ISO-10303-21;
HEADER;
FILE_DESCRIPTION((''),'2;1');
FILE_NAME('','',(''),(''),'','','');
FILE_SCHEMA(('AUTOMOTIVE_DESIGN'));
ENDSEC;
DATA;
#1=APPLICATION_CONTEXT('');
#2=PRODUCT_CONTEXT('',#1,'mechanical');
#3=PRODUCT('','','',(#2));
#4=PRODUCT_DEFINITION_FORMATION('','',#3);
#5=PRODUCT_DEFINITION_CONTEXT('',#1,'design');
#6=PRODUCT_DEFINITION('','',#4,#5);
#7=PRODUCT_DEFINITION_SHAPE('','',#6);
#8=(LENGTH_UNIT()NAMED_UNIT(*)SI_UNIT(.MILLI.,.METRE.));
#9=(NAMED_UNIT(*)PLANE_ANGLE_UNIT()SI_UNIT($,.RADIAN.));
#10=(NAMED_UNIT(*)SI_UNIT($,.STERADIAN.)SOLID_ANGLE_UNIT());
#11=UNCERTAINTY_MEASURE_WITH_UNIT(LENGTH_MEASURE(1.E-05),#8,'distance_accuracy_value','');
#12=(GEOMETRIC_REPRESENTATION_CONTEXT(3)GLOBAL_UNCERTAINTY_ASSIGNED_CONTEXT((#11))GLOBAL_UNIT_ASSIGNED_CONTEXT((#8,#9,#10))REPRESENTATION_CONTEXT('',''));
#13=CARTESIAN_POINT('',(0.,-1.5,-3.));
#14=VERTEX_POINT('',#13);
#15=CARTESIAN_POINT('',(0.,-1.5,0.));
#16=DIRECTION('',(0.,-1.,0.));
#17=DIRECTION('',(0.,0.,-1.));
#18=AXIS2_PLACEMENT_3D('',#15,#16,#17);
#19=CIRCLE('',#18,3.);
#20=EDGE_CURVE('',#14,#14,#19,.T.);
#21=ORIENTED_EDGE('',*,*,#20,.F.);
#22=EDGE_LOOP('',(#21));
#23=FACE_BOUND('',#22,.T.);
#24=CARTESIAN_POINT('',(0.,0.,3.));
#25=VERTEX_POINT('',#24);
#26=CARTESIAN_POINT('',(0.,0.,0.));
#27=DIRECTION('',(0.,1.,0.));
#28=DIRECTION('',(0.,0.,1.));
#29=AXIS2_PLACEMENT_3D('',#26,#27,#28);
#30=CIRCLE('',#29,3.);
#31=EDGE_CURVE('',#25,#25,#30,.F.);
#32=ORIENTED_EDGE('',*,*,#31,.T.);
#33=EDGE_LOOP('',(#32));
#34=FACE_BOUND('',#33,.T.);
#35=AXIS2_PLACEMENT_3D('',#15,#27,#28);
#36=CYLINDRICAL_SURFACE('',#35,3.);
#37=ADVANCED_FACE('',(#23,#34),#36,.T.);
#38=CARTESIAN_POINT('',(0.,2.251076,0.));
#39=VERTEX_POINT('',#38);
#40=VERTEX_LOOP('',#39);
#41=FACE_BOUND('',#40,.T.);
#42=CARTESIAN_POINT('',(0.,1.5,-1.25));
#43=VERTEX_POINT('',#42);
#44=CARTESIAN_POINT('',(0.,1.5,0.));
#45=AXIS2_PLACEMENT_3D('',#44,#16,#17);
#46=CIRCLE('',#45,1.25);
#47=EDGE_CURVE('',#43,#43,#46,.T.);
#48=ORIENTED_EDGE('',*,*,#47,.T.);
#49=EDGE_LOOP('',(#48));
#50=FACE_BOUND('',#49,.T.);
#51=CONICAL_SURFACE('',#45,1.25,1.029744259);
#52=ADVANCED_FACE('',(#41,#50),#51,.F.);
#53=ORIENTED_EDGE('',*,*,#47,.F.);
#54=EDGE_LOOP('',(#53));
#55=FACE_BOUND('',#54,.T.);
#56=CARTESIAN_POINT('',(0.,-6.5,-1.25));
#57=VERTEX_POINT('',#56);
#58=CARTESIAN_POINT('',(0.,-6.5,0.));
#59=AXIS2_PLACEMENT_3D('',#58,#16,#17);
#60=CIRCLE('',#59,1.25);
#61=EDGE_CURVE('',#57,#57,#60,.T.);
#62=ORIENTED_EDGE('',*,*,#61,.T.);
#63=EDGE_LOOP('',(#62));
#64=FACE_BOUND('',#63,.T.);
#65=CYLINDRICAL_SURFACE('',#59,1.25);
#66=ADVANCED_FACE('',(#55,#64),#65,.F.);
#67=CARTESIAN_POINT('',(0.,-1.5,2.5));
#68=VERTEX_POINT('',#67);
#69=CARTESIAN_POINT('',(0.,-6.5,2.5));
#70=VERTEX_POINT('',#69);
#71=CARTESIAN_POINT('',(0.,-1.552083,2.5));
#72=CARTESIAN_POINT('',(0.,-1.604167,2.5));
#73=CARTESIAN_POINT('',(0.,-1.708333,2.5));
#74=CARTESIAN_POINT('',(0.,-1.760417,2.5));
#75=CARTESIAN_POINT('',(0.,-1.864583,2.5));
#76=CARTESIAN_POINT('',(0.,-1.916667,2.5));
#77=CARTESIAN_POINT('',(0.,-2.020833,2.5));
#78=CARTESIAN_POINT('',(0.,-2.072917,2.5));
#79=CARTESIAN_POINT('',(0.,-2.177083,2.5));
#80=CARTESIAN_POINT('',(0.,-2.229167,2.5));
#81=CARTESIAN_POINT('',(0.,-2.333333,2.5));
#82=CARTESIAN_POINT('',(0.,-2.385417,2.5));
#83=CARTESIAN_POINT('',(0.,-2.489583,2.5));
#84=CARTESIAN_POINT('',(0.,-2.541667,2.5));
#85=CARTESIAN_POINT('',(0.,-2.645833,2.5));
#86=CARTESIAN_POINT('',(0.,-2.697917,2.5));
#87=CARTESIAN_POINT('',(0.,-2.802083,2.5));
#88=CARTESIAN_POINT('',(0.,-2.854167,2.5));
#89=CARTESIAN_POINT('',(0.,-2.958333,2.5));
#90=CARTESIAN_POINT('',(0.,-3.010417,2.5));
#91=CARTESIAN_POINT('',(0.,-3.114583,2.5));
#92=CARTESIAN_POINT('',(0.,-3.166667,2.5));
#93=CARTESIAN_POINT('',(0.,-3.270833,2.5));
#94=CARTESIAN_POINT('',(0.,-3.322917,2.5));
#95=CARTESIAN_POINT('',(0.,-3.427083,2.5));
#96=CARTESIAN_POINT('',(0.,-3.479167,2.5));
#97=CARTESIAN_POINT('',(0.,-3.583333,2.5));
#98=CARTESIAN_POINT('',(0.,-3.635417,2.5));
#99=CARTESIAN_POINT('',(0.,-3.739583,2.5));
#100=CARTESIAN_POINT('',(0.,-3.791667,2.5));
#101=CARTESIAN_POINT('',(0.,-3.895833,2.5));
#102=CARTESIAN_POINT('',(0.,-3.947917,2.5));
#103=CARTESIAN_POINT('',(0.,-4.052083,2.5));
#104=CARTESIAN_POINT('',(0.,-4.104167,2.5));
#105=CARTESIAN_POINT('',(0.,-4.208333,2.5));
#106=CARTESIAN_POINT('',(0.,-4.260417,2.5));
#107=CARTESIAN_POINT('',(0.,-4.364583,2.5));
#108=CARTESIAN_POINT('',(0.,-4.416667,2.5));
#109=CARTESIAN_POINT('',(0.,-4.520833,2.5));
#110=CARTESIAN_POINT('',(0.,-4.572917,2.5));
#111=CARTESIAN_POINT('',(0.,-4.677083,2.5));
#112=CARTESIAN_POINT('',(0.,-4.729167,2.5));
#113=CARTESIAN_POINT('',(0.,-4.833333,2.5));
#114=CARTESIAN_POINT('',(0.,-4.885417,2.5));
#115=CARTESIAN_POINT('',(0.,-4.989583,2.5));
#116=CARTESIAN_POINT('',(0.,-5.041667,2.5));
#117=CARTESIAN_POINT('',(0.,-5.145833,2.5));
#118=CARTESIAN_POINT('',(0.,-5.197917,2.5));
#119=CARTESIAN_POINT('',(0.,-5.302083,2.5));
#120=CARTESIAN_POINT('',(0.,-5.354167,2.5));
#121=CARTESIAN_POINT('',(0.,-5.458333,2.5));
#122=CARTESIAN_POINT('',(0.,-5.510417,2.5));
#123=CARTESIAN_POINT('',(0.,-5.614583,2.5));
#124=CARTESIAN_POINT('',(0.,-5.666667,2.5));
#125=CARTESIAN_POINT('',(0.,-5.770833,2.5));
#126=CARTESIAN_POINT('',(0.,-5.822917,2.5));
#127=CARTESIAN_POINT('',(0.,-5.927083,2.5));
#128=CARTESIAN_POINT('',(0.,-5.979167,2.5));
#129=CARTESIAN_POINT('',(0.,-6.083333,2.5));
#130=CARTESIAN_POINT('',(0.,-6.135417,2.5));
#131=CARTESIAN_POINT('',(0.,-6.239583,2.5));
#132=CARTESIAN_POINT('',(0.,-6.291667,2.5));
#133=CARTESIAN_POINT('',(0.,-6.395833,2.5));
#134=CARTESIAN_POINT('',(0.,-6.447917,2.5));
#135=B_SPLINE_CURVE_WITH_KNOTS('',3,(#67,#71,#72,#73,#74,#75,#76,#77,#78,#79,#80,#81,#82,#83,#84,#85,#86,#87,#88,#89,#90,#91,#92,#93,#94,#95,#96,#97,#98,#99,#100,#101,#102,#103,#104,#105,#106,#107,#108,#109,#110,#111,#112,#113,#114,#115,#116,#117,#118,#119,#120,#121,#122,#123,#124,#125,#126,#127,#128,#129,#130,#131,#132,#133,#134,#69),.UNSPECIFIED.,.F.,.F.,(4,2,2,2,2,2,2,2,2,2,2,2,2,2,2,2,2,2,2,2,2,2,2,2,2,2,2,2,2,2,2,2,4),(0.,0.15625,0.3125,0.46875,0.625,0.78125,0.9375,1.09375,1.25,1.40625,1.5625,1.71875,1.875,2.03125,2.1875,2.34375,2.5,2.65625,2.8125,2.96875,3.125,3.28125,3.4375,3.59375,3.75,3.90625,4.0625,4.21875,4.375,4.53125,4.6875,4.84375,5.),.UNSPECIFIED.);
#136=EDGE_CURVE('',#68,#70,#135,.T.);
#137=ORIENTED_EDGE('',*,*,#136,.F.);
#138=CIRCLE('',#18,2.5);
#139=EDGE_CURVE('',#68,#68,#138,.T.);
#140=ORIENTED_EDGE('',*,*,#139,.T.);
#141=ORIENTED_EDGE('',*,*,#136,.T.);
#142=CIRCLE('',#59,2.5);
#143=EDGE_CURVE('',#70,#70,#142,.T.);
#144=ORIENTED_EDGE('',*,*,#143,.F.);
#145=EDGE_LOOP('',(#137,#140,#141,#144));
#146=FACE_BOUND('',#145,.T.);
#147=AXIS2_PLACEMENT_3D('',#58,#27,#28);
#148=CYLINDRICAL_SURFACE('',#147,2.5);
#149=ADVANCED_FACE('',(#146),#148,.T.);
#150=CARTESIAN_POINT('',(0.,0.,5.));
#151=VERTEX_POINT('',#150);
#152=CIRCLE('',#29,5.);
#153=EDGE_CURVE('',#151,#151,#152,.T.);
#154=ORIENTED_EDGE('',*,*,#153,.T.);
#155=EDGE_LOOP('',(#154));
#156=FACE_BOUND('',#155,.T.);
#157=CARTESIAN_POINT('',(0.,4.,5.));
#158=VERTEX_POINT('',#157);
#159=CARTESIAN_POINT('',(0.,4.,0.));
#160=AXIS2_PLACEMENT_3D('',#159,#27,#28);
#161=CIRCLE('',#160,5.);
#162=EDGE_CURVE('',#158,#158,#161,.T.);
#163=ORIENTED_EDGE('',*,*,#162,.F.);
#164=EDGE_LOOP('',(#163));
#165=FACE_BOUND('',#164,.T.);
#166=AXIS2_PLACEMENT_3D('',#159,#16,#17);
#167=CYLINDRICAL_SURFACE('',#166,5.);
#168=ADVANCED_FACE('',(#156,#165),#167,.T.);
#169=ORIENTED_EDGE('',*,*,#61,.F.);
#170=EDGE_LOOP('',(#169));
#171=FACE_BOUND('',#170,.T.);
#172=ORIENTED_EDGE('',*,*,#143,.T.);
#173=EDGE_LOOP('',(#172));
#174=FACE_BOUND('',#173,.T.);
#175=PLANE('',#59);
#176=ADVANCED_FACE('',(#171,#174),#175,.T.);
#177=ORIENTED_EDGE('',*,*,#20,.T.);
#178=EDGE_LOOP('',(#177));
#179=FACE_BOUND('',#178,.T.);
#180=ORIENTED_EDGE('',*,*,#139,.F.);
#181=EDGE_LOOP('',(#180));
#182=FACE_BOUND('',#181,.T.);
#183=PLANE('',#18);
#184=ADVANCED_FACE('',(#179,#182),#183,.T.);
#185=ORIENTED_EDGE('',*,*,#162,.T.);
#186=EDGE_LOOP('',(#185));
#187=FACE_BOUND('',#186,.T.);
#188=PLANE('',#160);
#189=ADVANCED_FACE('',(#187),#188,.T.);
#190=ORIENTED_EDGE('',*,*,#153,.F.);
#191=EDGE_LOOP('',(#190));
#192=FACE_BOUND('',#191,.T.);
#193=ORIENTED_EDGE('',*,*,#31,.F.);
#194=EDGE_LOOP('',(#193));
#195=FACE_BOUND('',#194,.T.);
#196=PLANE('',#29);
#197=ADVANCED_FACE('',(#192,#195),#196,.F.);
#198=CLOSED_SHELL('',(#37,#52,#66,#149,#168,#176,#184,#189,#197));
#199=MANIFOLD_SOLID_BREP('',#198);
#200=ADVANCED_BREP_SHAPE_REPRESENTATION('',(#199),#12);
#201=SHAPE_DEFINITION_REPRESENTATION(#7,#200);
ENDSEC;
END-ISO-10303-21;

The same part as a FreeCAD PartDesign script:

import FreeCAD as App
import Part
import Sketcher
from FreeCAD import Vector
Q = App.Units.Quantity


def add_polygon(sketch, points):
    """Adds a closed chain of lines whose ends are joined by coincident constraints."""
    first, n = sketch.GeometryCount, len(points)
    for a, b in zip(points, points[1:] + points[:1]):
        sketch.addGeometry(Part.LineSegment(App.Vector(*a, 0), App.Vector(*b, 0)), False)
    for i in range(n):
        sketch.addConstraint(Sketcher.Constraint("Coincident", first + i, 2, first + (i + 1) % n, 1))

doc = App.newDocument("Part")
body = doc.addObject("PartDesign::Body", "Body")

sketch1 = doc.addObject("Sketcher::SketchObject", "Sketch")
body.addObject(sketch1)
sketch1.AttachmentSupport = (doc.XZ_Plane, [""])
sketch1.MapMode = "FlatFace"
sketch1.addGeometry(Part.Circle(Vector(0, 0, 0), Vector(0, 0, 1), 5), False)
sketch1.addConstraint([
    Sketcher.Constraint("Coincident", 0, 3, -1, 1),
    Sketcher.Constraint("Diameter", 0, 10.0),
])
pad1 = doc.addObject("PartDesign::Pad", "Pad")
body.addObject(pad1)
pad1.Profile = sketch1
pad1.Length = 4
pad1.Reversed = True

sketch2 = doc.addObject("Sketcher::SketchObject", "Sketch001")
body.addObject(sketch2)
sketch2.AttachmentSupport = (doc.XZ_Plane, [""])
sketch2.MapMode = "FlatFace"
sketch2.addGeometry(Part.Circle(Vector(0, 0, 0), Vector(0, 0, 1), 2.5), False)
sketch2.addConstraint([
    Sketcher.Constraint("Coincident", 0, 3, -1, 1),
    Sketcher.Constraint("Diameter", 0, 5.0),
])
pad2 = doc.addObject("PartDesign::Pad", "Pad001")
body.addObject(pad2)
pad2.Profile = sketch2
pad2.Length = 6.5

sketch3 = doc.addObject("Sketcher::SketchObject", "Sketch002")
body.addObject(sketch3)
sketch3.AttachmentSupport = (doc.XZ_Plane, [""])
sketch3.MapMode = "FlatFace"
sketch3.addGeometry(Part.Circle(Vector(0, 0, 0), Vector(0, 0, 1), 3), False)
sketch3.addConstraint([
    Sketcher.Constraint("Coincident", 0, 3, -1, 1),
    Sketcher.Constraint("Diameter", 0, 6.0),
])
pad3 = doc.addObject("PartDesign::Pad", "Pad002")
body.addObject(pad3)
pad3.Profile = sketch3
pad3.Length = 1.5

sketch4 = doc.addObject("Sketcher::SketchObject", "Sketch003")
body.addObject(sketch4)
sketch4.AttachmentSupport = (doc.YZ_Plane, [""])
sketch4.MapMode = "FlatFace"
add_polygon(sketch4, [(2.251076, 0), (-6.5, 0), (-6.5, -1.25), (1.5, -1.25)])
sketch4.addConstraint([
    Sketcher.Constraint("Horizontal", 0),
    Sketcher.Constraint("Vertical", 1),
    Sketcher.Constraint("Horizontal", 2),
    Sketcher.Constraint("PointOnObject", 0, 2, -1),
    Sketcher.Constraint("DistanceX", 2, 1, 2, 2, 8.0),
    Sketcher.Constraint("Angle", 3, Q("59 deg")),
    Sketcher.Constraint("DistanceY", 1, 2, 1, 1, 1.25),
    Sketcher.Constraint("DistanceX", 0, 2, -1, 1, 6.5),
])
groove = doc.addObject("PartDesign::Groove", "Groove")
body.addObject(groove)
groove.Profile = sketch4
groove.ReferenceAxis = (sketch4, ["H_Axis"])
groove.Angle = 360

doc.recompute()
